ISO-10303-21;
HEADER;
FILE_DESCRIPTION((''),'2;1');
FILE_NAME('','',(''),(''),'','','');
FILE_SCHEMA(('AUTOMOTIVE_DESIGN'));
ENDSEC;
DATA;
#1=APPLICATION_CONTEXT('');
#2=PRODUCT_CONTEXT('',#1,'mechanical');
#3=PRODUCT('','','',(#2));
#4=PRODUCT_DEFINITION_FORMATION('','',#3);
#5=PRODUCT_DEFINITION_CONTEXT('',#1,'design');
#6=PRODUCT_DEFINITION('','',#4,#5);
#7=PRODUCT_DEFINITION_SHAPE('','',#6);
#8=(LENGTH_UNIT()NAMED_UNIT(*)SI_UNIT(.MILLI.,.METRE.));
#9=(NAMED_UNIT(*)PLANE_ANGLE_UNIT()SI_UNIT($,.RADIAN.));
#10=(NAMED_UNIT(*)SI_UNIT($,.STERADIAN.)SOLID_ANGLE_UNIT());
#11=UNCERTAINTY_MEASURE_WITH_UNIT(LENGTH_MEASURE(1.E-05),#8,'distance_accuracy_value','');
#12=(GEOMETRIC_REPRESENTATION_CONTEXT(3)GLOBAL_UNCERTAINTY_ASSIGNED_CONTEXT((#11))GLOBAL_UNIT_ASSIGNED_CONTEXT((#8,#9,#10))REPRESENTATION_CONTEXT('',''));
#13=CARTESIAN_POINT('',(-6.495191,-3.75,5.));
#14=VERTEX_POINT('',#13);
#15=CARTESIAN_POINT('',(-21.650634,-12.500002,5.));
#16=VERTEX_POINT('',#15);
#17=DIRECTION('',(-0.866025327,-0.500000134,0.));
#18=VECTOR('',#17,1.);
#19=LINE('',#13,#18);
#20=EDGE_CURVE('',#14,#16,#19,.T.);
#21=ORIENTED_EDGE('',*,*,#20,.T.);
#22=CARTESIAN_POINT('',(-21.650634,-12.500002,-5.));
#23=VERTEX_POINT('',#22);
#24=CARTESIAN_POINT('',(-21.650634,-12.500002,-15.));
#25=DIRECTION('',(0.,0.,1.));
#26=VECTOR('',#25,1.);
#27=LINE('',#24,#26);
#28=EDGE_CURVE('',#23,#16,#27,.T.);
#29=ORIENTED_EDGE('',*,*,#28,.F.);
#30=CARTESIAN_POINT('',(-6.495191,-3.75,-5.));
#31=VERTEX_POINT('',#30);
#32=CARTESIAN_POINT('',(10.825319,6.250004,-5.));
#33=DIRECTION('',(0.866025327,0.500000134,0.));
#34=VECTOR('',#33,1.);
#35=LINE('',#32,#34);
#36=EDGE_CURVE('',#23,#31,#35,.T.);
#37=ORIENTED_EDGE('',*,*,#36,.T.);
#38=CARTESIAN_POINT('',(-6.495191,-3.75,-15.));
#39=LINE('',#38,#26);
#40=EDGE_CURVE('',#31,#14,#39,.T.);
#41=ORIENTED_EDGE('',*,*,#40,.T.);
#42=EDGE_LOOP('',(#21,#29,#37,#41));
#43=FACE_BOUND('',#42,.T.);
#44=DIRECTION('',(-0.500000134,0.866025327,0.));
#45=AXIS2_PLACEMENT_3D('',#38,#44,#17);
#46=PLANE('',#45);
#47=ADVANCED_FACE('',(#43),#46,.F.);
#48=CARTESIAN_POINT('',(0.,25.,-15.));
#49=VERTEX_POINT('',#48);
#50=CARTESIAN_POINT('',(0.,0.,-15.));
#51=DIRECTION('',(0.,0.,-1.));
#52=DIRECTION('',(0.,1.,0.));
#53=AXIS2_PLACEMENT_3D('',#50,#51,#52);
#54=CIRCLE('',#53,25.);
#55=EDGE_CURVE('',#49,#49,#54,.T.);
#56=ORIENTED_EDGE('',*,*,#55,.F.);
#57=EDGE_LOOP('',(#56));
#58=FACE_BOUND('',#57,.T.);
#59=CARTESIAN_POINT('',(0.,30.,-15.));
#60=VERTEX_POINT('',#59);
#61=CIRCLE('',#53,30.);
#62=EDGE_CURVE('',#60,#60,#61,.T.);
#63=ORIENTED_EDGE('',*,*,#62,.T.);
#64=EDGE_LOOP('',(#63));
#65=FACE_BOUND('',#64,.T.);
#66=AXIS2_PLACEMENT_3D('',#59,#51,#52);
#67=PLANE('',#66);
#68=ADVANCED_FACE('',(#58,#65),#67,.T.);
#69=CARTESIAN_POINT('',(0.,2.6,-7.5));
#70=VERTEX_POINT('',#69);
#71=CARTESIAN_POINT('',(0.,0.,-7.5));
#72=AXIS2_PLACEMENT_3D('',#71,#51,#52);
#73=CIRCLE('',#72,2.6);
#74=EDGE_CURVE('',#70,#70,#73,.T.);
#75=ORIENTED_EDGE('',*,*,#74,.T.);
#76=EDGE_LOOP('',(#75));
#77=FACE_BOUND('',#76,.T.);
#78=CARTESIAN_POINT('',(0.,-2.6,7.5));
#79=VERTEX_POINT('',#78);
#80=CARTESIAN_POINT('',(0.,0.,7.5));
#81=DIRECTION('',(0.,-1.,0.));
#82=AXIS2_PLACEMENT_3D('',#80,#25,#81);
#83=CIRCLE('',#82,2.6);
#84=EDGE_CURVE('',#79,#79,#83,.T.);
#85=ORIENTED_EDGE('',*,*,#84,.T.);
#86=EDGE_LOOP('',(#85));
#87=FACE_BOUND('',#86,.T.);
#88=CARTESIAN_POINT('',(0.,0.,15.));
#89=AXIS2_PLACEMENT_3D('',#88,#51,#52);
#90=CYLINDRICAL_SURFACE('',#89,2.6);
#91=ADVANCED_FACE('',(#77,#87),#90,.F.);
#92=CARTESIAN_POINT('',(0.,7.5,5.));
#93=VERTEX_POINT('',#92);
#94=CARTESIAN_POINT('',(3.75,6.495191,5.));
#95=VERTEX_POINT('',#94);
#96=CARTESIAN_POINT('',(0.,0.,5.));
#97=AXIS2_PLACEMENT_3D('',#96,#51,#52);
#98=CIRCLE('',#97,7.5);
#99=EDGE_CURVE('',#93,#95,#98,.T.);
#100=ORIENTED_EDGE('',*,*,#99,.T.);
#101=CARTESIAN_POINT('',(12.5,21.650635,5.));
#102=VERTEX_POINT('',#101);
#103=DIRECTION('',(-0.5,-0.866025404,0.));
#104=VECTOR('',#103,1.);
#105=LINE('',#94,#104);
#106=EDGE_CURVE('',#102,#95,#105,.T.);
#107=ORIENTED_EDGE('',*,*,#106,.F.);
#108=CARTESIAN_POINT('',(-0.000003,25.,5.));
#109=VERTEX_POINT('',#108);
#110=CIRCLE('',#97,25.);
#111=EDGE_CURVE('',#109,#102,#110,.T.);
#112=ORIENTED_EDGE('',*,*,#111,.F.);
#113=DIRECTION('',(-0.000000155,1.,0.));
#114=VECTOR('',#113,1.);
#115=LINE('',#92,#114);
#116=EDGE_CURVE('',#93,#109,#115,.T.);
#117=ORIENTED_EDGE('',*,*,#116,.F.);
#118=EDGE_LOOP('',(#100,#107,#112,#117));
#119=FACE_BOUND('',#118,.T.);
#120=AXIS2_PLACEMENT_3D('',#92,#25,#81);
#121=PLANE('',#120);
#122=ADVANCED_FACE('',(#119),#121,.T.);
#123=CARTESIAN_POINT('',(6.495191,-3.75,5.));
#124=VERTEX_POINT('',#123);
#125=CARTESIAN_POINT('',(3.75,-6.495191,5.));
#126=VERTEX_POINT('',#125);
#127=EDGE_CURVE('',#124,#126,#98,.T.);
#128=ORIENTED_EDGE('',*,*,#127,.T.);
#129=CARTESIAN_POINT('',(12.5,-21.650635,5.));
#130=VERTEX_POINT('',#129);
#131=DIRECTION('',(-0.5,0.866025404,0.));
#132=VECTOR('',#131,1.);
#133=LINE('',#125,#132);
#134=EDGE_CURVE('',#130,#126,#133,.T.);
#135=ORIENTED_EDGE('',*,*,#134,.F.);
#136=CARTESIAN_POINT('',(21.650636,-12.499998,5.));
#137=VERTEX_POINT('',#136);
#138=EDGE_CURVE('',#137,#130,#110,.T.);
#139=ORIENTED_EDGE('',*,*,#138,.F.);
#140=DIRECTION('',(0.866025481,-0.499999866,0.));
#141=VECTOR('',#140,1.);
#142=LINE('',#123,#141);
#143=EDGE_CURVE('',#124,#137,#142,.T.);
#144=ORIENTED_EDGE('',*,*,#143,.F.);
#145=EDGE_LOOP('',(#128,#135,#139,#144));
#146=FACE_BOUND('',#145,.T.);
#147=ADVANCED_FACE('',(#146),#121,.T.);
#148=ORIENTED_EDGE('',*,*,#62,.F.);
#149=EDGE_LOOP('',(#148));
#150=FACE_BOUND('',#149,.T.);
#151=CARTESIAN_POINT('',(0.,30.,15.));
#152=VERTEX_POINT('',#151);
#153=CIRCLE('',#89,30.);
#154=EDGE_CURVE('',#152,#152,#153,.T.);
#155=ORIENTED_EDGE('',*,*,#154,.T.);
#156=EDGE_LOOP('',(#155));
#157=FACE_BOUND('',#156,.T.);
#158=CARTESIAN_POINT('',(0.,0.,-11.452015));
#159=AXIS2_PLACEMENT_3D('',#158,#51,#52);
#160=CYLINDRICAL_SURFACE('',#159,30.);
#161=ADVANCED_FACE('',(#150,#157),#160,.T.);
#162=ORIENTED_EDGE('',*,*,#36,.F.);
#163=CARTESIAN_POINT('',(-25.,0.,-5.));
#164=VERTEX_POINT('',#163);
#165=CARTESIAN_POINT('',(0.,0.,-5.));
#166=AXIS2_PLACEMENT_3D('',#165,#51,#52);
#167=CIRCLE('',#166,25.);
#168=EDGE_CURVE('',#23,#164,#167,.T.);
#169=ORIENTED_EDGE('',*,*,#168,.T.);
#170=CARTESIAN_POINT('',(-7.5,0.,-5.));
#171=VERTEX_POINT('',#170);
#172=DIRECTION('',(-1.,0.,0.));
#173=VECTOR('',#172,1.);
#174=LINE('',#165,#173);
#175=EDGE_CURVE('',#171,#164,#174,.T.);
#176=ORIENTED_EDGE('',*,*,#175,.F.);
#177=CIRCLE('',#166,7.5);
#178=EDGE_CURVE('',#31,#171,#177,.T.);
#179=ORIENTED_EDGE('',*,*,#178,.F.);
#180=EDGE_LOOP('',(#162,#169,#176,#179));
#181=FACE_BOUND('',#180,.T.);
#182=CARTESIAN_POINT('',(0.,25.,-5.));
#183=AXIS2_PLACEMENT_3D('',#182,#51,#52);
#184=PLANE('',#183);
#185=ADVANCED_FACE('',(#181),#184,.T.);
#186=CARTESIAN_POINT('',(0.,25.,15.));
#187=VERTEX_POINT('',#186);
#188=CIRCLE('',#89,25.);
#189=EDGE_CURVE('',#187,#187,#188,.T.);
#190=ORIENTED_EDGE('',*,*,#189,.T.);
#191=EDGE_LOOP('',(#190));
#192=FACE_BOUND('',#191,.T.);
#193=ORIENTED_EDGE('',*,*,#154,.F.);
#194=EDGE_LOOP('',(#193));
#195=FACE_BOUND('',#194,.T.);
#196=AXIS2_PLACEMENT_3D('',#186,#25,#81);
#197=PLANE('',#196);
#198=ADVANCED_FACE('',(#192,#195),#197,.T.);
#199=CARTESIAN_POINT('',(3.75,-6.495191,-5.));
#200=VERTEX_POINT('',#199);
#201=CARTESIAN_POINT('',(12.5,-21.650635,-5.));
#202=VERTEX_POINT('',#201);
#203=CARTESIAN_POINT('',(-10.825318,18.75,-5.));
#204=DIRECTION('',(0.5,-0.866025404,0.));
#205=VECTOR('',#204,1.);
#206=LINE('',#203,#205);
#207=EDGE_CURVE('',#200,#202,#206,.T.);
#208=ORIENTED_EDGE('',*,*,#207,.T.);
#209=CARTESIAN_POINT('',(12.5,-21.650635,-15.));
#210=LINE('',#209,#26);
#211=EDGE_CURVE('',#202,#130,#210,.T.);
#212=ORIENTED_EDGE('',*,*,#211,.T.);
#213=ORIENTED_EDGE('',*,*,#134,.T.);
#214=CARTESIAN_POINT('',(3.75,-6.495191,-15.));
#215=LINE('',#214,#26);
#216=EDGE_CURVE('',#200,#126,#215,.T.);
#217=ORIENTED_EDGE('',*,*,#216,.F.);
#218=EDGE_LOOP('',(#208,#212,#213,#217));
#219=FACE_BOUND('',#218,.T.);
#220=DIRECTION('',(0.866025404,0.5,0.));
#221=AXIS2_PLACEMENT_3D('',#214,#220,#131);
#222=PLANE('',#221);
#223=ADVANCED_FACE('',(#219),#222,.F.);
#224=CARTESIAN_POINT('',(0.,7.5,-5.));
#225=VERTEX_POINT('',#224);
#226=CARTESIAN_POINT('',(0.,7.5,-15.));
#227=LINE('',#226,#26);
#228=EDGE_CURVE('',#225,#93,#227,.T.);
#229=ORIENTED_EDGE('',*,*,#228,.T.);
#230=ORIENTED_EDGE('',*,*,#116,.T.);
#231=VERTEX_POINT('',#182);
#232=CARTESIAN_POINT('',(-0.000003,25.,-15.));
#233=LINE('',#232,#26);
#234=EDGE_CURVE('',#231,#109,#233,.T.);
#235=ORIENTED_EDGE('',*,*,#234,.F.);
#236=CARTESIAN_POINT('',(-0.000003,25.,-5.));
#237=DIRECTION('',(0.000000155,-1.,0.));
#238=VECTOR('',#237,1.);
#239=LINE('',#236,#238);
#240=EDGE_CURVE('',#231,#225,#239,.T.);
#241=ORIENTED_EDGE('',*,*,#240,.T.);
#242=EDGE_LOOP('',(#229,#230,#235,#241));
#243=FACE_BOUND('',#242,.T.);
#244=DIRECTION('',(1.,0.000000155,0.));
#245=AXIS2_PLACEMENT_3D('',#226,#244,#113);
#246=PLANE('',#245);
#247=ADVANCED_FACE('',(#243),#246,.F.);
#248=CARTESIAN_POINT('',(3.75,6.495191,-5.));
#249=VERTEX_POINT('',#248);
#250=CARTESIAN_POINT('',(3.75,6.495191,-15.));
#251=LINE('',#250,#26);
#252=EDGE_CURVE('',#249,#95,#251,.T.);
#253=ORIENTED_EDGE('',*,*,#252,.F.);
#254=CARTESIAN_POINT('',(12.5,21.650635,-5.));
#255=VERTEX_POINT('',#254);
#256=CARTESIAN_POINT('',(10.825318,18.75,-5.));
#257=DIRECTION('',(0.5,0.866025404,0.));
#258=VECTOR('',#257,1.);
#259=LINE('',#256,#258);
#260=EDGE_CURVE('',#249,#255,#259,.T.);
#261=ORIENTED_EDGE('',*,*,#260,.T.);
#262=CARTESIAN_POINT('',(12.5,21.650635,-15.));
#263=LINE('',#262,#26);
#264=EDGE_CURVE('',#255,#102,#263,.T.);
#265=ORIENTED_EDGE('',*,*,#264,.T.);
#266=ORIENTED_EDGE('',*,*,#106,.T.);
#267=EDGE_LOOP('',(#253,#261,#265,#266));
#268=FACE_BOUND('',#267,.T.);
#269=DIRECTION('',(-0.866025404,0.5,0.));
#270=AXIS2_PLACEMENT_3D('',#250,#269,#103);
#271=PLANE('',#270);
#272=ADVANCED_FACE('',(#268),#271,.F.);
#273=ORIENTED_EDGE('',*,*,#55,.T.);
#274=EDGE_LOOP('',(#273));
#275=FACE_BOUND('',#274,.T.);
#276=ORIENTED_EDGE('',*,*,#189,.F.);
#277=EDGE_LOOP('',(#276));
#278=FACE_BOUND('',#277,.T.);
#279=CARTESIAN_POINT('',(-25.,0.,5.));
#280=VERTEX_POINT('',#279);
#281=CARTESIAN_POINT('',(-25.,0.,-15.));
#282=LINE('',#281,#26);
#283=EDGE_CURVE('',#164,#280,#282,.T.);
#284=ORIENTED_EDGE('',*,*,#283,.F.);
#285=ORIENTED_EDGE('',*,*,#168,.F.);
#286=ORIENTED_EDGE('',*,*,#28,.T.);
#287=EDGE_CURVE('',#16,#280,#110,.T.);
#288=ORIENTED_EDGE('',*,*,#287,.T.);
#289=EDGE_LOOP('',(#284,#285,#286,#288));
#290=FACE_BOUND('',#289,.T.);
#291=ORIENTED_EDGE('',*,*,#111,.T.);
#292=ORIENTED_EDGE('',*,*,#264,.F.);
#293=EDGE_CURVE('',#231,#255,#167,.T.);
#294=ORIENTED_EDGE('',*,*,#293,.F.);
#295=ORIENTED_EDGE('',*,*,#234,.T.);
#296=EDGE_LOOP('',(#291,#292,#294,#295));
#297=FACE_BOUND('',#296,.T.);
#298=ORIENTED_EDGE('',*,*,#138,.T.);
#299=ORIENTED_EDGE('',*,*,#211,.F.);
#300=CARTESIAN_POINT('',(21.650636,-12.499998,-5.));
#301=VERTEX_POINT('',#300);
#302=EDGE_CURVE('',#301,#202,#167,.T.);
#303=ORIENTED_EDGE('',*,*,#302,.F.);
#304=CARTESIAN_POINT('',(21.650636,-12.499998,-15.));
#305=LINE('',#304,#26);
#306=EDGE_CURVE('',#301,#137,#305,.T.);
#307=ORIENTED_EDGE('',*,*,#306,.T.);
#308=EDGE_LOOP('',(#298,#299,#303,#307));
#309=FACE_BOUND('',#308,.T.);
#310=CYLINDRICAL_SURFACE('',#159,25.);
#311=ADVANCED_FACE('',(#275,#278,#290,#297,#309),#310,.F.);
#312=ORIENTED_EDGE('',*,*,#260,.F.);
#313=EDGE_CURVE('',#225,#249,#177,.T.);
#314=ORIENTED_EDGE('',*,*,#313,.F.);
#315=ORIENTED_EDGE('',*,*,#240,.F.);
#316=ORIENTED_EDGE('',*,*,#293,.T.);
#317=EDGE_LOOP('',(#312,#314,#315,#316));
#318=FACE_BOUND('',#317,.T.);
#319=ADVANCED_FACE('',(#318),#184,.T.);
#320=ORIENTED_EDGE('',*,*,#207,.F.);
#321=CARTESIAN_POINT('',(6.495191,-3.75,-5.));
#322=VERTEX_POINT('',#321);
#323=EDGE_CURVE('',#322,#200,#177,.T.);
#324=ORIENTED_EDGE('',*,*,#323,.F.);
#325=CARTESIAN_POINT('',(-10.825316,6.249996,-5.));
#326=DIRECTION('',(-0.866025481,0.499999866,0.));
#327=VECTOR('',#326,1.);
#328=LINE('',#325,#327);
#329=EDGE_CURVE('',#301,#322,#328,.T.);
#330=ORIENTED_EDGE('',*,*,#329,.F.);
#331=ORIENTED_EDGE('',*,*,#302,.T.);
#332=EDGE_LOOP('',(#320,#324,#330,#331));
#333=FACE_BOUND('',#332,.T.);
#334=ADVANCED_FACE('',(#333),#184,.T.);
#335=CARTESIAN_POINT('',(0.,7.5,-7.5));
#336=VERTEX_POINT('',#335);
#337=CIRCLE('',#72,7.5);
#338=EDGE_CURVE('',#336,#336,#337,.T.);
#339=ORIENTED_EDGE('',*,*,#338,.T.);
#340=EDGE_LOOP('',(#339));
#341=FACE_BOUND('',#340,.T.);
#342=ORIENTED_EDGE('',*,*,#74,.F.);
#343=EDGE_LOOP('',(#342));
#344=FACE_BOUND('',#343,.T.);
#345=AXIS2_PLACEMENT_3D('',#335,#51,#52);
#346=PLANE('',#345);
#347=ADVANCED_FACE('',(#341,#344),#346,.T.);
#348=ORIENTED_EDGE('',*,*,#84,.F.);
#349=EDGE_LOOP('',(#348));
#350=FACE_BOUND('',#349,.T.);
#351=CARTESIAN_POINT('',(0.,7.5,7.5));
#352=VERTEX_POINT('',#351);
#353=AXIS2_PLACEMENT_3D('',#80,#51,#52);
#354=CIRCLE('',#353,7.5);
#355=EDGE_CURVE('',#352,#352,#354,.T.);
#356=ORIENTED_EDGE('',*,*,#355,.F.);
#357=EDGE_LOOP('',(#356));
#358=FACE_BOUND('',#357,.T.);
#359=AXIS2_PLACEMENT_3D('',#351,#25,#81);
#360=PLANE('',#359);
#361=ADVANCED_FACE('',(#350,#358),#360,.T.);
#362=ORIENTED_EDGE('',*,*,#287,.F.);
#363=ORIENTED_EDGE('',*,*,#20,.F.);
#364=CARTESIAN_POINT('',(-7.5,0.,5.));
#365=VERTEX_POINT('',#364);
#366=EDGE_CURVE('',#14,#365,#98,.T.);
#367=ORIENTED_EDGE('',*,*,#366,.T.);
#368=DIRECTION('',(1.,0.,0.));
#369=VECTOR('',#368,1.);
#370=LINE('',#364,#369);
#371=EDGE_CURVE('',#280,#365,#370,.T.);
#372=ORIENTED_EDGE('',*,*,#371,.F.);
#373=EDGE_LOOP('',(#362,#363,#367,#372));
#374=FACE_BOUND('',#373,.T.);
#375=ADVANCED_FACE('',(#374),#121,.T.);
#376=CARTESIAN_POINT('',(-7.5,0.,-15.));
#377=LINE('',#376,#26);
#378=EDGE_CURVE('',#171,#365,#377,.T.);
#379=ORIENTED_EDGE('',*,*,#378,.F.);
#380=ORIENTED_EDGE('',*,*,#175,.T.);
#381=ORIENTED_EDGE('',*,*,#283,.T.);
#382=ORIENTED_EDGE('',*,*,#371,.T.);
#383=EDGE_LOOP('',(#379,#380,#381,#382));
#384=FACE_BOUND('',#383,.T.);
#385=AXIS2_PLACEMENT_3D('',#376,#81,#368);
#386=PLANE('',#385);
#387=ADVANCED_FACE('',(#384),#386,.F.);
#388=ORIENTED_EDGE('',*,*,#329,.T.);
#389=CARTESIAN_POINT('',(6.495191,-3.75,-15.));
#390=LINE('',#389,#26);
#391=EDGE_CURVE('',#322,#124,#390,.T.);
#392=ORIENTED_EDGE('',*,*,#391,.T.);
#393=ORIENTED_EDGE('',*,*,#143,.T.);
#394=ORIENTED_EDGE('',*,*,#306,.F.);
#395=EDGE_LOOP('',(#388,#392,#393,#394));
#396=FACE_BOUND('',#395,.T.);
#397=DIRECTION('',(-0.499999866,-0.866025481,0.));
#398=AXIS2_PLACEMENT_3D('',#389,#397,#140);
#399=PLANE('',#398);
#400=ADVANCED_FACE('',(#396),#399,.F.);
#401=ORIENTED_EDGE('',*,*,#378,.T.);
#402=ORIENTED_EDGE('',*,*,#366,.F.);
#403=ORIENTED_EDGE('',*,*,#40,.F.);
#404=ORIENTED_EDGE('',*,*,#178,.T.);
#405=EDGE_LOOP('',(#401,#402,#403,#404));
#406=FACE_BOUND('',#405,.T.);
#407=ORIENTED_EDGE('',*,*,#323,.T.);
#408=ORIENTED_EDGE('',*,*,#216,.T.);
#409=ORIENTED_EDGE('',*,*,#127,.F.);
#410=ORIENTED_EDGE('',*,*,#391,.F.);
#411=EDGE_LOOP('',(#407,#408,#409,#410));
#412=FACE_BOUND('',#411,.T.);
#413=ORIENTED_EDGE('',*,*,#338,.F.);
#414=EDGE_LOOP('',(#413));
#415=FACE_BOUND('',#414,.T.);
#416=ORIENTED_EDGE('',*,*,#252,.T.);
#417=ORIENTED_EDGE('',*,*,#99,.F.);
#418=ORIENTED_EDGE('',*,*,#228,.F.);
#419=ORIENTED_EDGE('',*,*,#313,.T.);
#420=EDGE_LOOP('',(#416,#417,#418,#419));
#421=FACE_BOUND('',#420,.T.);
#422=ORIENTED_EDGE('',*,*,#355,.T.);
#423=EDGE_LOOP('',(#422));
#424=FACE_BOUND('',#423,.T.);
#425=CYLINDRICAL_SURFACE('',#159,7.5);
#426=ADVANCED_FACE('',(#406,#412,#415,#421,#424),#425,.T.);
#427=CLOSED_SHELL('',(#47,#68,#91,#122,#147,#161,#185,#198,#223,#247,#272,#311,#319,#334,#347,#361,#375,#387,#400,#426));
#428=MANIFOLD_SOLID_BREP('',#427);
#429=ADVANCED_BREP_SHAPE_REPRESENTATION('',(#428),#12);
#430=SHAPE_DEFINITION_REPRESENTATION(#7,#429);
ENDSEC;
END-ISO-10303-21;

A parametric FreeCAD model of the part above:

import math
import FreeCAD as App
import Part
import Sketcher
Q = App.Units.Quantity

doc = App.newDocument("Part")
body = doc.addObject("PartDesign::Body", "Body")

sketch1 = body.newObject("Sketcher::SketchObject", "Sketch")
sketch1.AttachmentSupport = (doc.getObject("YZ_Plane"), [""])
sketch1.MapMode = "FlatFace"
sketch1.addGeometry(Part.LineSegment(App.Vector(25, 5, 0), App.Vector(7.5, 5, 0)), False)
sketch1.addGeometry(Part.LineSegment(App.Vector(7.5, 5, 0), App.Vector(7.5, 7.5, 0)), False)
sketch1.addGeometry(Part.LineSegment(App.Vector(7.5, 7.5, 0), App.Vector(0, 7.5, 0)), False)
sketch1.addGeometry(Part.LineSegment(App.Vector(0, 7.5, 0), App.Vector(0, -7.5, 0)), False)
sketch1.addGeometry(Part.LineSegment(App.Vector(0, -7.5, 0), App.Vector(7.5, -7.5, 0)), False)
sketch1.addGeometry(Part.LineSegment(App.Vector(7.5, -7.5, 0), App.Vector(7.5, -5, 0)), False)
sketch1.addGeometry(Part.LineSegment(App.Vector(7.5, -5, 0), App.Vector(25, -5, 0)), False)
sketch1.addGeometry(Part.LineSegment(App.Vector(25, -5, 0), App.Vector(25, -15, 0)), False)
sketch1.addGeometry(Part.LineSegment(App.Vector(25, -15, 0), App.Vector(30, -15, 0)), False)
sketch1.addGeometry(Part.LineSegment(App.Vector(30, -15, 0), App.Vector(30, 15, 0)), False)
sketch1.addGeometry(Part.LineSegment(App.Vector(30, 15, 0), App.Vector(25, 15, 0)), False)
sketch1.addGeometry(Part.LineSegment(App.Vector(25, 15, 0), App.Vector(25, 5, 0)), False)
sketch1.addConstraint(Sketcher.Constraint("Coincident", 0, 2, 1, 1))
sketch1.addConstraint(Sketcher.Constraint("Coincident", 1, 2, 2, 1))
sketch1.addConstraint(Sketcher.Constraint("Coincident", 2, 2, 3, 1))
sketch1.addConstraint(Sketcher.Constraint("Coincident", 3, 2, 4, 1))
sketch1.addConstraint(Sketcher.Constraint("Coincident", 4, 2, 5, 1))
sketch1.addConstraint(Sketcher.Constraint("Coincident", 5, 2, 6, 1))
sketch1.addConstraint(Sketcher.Constraint("Coincident", 6, 2, 7, 1))
sketch1.addConstraint(Sketcher.Constraint("Coincident", 7, 2, 8, 1))
sketch1.addConstraint(Sketcher.Constraint("Coincident", 8, 2, 9, 1))
sketch1.addConstraint(Sketcher.Constraint("Coincident", 9, 2, 10, 1))
sketch1.addConstraint(Sketcher.Constraint("Coincident", 10, 2, 11, 1))
sketch1.addConstraint(Sketcher.Constraint("Coincident", 11, 2, 0, 1))
sketch1.addConstraint(Sketcher.Constraint("Horizontal", 0))
sketch1.addConstraint(Sketcher.Constraint("Vertical", 1))
sketch1.addConstraint(Sketcher.Constraint("Horizontal", 2))
sketch1.addConstraint(Sketcher.Constraint("Vertical", 3))
sketch1.addConstraint(Sketcher.Constraint("Horizontal", 4))
sketch1.addConstraint(Sketcher.Constraint("Vertical", 5))
sketch1.addConstraint(Sketcher.Constraint("Horizontal", 6))
sketch1.addConstraint(Sketcher.Constraint("Vertical", 7))
sketch1.addConstraint(Sketcher.Constraint("Horizontal", 8))
sketch1.addConstraint(Sketcher.Constraint("Vertical", 9))
sketch1.addConstraint(Sketcher.Constraint("Horizontal", 10))
sketch1.addConstraint(Sketcher.Constraint("Vertical", 11))
sketch1.addConstraint(Sketcher.Constraint("Symmetric", 2, 2, 3, 2, -1, 1))
sketch1.addConstraint(Sketcher.Constraint("Symmetric", 0, 2, 5, 2, -1))
sketch1.addConstraint(Sketcher.Constraint("Symmetric", 7, 2, 10, 2, -1))
sketch1.addConstraint(Sketcher.Constraint("DistanceX", 8, 1, 8, 2, 5.0))
sketch1.addConstraint(Sketcher.Constraint("DistanceY", 3, 2, 3, 1, 15.0))
sketch1.addConstraint(Sketcher.Constraint("DistanceY", 7, 2, 7, 1, 10.0))
sketch1.addConstraint(Sketcher.Constraint("DistanceY", 9, 1, 9, 2, 30.0))
sketch1.addConstraint(Sketcher.Constraint("DistanceX", 0, 2, 0, 1, 17.5))
sketch1.addConstraint(Sketcher.Constraint("DistanceX", 2, 2, 2, 1, 7.5))
revolution = body.newObject("PartDesign::Revolution", "Revolution")
revolution.Profile = sketch1
revolution.ReferenceAxis = (sketch1, ["V_Axis"])
revolution.Angle = 360

sketch2 = body.newObject("Sketcher::SketchObject", "Sketch001")
sketch2.AttachmentSupport = (doc.getObject("XY_Plane"), [""])
sketch2.MapMode = "FlatFace"
sketch2.AttachmentOffset = App.Placement(App.Vector(0, 0, 5), App.Rotation())
sketch2.addGeometry(Part.LineSegment(App.Vector(0, 7.5, 0), App.Vector(-0.000003, 25, 0)), False)
sketch2.addGeometry(Part.ArcOfCircle(Part.Circle(App.Vector(0, 0, 0), App.Vector(0, 0, 1), 25), math.radians(90.000006), math.radians(180)), False)
sketch2.addGeometry(Part.LineSegment(App.Vector(-25, 0, 0), App.Vector(-7.5, 0, 0)), False)
sketch2.addGeometry(Part.ArcOfCircle(Part.Circle(App.Vector(0, 0, 0), App.Vector(0, 0, 1), 7.5), math.radians(90), math.radians(180)), False)
sketch2.addConstraint(Sketcher.Constraint("Coincident", 0, 2, 1, 1))
sketch2.addConstraint(Sketcher.Constraint("Coincident", 1, 2, 2, 1))
sketch2.addConstraint(Sketcher.Constraint("Coincident", 2, 2, 3, 2))
sketch2.addConstraint(Sketcher.Constraint("Coincident", 3, 1, 0, 1))
sketch2.addConstraint(Sketcher.Constraint("Horizontal", 2))
sketch2.addConstraint(Sketcher.Constraint("Coincident", 1, 3, -1, 1))
sketch2.addConstraint(Sketcher.Constraint("Coincident", 3, 3, -1, 1))
sketch2.addConstraint(Sketcher.Constraint("PointOnObject", 1, 2, -1))
sketch2.addConstraint(Sketcher.Constraint("PointOnObject", 3, 1, -2))
sketch2.addConstraint(Sketcher.Constraint("Radius", 1, 25.0))
sketch2.addConstraint(Sketcher.Constraint("Radius", 3, 7.5))
sketch2.addConstraint(Sketcher.Constraint("Angle", 0, Q("90.000009 deg")))
pocket1 = body.newObject("PartDesign::Pocket", "Pocket")
pocket1.Profile = sketch2
pocket1.Type = "ThroughAll"
doc.recompute()

polarpattern = body.newObject("PartDesign::PolarPattern", "PolarPattern")
polarpattern.Originals = [pocket1]
polarpattern.Axis = (doc.getObject("Z_Axis"), [""])
polarpattern.Angle = 360
polarpattern.Occurrences = 3
body.Tip = polarpattern

sketch3 = body.newObject("Sketcher::SketchObject", "Sketch002")
sketch3.AttachmentSupport = (doc.getObject("XY_Plane"), [""])
sketch3.MapMode = "FlatFace"
sketch3.AttachmentOffset = App.Placement(App.Vector(0, 0, -7.5), App.Rotation())
sketch3.addGeometry(Part.Circle(App.Vector(0, 0, 0), App.Vector(0, 0, 1), 2.6), False)
sketch3.addConstraint(Sketcher.Constraint("Coincident", 0, 3, -1, 1))
sketch3.addConstraint(Sketcher.Constraint("Diameter", 0, 5.2))
pocket2 = body.newObject("PartDesign::Pocket", "Pocket001")
pocket2.Profile = sketch3
pocket2.Type = "ThroughAll"
pocket2.Reversed = True

doc.recompute()
